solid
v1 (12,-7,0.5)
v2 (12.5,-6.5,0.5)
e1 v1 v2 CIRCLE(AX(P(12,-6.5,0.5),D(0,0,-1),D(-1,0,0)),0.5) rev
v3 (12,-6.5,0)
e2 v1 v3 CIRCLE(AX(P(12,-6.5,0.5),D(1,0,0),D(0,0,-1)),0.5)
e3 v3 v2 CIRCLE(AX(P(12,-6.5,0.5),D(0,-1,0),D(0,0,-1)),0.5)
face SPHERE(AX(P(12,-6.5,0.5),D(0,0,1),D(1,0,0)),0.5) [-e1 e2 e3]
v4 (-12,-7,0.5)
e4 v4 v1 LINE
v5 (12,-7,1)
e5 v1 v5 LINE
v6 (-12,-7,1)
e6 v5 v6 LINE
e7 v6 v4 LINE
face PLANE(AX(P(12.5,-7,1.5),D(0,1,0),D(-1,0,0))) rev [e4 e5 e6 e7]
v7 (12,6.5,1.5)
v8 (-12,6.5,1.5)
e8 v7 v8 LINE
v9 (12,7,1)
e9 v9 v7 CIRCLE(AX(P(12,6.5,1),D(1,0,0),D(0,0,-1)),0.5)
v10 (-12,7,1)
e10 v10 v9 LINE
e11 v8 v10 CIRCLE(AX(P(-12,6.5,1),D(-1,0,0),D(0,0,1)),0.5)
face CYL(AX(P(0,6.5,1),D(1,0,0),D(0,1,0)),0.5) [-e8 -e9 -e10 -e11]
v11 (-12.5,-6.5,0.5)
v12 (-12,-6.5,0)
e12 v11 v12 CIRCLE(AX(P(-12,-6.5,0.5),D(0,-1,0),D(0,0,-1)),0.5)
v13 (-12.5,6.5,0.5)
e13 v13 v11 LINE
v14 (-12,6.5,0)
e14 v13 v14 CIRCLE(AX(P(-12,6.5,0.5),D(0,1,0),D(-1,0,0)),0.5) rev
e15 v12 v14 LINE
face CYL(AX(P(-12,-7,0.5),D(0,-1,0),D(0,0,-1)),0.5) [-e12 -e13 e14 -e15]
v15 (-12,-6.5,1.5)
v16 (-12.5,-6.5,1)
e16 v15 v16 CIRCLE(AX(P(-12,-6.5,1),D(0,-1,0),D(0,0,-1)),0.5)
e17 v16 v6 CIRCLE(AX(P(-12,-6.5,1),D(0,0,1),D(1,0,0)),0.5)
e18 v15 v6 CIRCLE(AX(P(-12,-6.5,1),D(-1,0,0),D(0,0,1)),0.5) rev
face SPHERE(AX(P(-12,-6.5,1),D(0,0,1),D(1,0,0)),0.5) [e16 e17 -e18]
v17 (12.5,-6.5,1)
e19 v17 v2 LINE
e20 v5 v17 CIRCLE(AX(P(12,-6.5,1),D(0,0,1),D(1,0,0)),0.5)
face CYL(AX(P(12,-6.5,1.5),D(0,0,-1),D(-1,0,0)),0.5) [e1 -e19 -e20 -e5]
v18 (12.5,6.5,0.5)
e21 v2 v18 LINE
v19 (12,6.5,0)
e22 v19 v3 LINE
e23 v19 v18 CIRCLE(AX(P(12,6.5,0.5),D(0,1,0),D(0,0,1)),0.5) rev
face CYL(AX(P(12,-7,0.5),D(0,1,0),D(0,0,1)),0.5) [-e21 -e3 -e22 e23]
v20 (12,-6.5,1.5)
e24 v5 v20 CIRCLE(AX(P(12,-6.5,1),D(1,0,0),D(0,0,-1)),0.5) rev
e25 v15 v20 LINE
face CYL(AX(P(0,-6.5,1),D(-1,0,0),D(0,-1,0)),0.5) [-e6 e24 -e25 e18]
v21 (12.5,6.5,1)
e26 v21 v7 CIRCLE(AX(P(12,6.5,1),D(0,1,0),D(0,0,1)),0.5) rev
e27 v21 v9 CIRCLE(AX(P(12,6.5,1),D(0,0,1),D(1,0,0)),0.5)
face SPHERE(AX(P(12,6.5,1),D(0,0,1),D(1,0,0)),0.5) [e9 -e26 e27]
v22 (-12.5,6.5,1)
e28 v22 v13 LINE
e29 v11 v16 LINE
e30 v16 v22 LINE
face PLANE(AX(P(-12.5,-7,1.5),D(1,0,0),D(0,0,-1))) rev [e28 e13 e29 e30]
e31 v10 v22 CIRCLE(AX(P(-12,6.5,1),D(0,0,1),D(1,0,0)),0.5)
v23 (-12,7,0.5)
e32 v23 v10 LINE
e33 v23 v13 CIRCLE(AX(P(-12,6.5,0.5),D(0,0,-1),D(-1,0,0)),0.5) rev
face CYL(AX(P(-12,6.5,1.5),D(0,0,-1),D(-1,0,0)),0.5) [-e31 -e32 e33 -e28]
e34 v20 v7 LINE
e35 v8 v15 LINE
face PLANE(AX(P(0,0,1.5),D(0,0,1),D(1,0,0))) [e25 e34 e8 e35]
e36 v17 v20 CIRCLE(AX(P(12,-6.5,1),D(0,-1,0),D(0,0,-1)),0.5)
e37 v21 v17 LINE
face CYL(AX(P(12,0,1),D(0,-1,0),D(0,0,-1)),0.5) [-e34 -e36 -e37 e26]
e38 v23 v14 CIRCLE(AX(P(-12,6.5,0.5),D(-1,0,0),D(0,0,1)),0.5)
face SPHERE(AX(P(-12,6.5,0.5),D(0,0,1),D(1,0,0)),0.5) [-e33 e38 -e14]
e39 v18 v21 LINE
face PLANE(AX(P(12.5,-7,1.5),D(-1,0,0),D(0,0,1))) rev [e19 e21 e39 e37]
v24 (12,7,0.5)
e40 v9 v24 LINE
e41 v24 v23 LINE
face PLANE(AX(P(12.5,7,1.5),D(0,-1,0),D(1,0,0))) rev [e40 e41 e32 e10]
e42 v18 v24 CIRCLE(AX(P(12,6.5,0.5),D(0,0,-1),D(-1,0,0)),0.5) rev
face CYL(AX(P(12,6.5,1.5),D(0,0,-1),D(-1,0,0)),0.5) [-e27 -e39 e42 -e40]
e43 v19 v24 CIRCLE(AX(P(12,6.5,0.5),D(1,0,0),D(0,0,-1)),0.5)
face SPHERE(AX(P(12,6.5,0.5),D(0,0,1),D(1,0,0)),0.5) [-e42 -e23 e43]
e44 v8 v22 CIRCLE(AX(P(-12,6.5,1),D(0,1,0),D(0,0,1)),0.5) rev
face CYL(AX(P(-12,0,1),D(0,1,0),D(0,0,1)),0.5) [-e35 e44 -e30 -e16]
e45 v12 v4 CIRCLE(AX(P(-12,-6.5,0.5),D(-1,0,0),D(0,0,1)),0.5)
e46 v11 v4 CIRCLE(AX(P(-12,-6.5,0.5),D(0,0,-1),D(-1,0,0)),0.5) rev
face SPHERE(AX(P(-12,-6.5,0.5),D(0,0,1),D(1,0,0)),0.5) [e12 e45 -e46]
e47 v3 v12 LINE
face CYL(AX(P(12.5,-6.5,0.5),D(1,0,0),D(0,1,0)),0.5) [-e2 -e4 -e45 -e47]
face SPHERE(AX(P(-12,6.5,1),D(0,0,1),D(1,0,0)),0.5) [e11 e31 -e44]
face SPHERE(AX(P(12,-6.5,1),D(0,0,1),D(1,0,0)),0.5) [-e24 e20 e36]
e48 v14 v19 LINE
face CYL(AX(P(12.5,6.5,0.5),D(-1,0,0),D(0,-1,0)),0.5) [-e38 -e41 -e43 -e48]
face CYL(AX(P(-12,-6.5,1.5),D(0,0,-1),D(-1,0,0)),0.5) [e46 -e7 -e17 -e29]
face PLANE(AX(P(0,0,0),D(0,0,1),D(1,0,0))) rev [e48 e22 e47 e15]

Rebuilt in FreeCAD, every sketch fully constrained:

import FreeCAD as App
import Part
import Sketcher

V = App.Vector
Q = App.Units.Quantity

doc = App.newDocument("Part")
body = doc.addObject("PartDesign::Body", "Body")

# Sketch on XY plane
sketch1 = body.newObject("Sketcher::SketchObject", "Sketch")
sketch1.AttachmentSupport = (doc.getObject("XY_Plane"), [""])
sketch1.MapMode = "FlatFace"
sketch1.addGeometry(Part.LineSegment(V(-12, 7, 0), V(-12, -7, 0)), False)
sketch1.addGeometry(Part.LineSegment(V(-12, -7, 0), V(12, -7, 0)), False)
sketch1.addGeometry(Part.LineSegment(V(12, -7, 0), V(12, 7, 0)), False)
sketch1.addGeometry(Part.LineSegment(V(12, 7, 0), V(-12, 7, 0)), False)
sketch1.addConstraint(Sketcher.Constraint("Coincident", 0, 2, 1, 1))
sketch1.addConstraint(Sketcher.Constraint("Coincident", 1, 2, 2, 1))
sketch1.addConstraint(Sketcher.Constraint("Coincident", 2, 2, 3, 1))
sketch1.addConstraint(Sketcher.Constraint("Coincident", 3, 2, 0, 1))
sketch1.addConstraint(Sketcher.Constraint("Vertical", 0))
sketch1.addConstraint(Sketcher.Constraint("Horizontal", 1))
sketch1.addConstraint(Sketcher.Constraint("Vertical", 2))
sketch1.addConstraint(Sketcher.Constraint("Horizontal", 3))
sketch1.addConstraint(Sketcher.Constraint("Symmetric", 0, 2, 2, 2, -1, 1))
sketch1.addConstraint(Sketcher.Constraint("DistanceX", 1, 1, 1, 2, Q("25 mm")))
sketch1.addConstraint(Sketcher.Constraint("DistanceY", 0, 2, 0, 1, Q("14 mm")))
pad1 = body.newObject("PartDesign::Pad", "Pad")
pad1.Profile = sketch1
pad1.Length = 1.5
doc.recompute()

fillet = body.newObject("PartDesign::Fillet", "Fillet")
fillet.Base = (pad1, ["Edge1"])
fillet.UseAllEdges = True
fillet.Radius = 0.5

doc.recompute()
